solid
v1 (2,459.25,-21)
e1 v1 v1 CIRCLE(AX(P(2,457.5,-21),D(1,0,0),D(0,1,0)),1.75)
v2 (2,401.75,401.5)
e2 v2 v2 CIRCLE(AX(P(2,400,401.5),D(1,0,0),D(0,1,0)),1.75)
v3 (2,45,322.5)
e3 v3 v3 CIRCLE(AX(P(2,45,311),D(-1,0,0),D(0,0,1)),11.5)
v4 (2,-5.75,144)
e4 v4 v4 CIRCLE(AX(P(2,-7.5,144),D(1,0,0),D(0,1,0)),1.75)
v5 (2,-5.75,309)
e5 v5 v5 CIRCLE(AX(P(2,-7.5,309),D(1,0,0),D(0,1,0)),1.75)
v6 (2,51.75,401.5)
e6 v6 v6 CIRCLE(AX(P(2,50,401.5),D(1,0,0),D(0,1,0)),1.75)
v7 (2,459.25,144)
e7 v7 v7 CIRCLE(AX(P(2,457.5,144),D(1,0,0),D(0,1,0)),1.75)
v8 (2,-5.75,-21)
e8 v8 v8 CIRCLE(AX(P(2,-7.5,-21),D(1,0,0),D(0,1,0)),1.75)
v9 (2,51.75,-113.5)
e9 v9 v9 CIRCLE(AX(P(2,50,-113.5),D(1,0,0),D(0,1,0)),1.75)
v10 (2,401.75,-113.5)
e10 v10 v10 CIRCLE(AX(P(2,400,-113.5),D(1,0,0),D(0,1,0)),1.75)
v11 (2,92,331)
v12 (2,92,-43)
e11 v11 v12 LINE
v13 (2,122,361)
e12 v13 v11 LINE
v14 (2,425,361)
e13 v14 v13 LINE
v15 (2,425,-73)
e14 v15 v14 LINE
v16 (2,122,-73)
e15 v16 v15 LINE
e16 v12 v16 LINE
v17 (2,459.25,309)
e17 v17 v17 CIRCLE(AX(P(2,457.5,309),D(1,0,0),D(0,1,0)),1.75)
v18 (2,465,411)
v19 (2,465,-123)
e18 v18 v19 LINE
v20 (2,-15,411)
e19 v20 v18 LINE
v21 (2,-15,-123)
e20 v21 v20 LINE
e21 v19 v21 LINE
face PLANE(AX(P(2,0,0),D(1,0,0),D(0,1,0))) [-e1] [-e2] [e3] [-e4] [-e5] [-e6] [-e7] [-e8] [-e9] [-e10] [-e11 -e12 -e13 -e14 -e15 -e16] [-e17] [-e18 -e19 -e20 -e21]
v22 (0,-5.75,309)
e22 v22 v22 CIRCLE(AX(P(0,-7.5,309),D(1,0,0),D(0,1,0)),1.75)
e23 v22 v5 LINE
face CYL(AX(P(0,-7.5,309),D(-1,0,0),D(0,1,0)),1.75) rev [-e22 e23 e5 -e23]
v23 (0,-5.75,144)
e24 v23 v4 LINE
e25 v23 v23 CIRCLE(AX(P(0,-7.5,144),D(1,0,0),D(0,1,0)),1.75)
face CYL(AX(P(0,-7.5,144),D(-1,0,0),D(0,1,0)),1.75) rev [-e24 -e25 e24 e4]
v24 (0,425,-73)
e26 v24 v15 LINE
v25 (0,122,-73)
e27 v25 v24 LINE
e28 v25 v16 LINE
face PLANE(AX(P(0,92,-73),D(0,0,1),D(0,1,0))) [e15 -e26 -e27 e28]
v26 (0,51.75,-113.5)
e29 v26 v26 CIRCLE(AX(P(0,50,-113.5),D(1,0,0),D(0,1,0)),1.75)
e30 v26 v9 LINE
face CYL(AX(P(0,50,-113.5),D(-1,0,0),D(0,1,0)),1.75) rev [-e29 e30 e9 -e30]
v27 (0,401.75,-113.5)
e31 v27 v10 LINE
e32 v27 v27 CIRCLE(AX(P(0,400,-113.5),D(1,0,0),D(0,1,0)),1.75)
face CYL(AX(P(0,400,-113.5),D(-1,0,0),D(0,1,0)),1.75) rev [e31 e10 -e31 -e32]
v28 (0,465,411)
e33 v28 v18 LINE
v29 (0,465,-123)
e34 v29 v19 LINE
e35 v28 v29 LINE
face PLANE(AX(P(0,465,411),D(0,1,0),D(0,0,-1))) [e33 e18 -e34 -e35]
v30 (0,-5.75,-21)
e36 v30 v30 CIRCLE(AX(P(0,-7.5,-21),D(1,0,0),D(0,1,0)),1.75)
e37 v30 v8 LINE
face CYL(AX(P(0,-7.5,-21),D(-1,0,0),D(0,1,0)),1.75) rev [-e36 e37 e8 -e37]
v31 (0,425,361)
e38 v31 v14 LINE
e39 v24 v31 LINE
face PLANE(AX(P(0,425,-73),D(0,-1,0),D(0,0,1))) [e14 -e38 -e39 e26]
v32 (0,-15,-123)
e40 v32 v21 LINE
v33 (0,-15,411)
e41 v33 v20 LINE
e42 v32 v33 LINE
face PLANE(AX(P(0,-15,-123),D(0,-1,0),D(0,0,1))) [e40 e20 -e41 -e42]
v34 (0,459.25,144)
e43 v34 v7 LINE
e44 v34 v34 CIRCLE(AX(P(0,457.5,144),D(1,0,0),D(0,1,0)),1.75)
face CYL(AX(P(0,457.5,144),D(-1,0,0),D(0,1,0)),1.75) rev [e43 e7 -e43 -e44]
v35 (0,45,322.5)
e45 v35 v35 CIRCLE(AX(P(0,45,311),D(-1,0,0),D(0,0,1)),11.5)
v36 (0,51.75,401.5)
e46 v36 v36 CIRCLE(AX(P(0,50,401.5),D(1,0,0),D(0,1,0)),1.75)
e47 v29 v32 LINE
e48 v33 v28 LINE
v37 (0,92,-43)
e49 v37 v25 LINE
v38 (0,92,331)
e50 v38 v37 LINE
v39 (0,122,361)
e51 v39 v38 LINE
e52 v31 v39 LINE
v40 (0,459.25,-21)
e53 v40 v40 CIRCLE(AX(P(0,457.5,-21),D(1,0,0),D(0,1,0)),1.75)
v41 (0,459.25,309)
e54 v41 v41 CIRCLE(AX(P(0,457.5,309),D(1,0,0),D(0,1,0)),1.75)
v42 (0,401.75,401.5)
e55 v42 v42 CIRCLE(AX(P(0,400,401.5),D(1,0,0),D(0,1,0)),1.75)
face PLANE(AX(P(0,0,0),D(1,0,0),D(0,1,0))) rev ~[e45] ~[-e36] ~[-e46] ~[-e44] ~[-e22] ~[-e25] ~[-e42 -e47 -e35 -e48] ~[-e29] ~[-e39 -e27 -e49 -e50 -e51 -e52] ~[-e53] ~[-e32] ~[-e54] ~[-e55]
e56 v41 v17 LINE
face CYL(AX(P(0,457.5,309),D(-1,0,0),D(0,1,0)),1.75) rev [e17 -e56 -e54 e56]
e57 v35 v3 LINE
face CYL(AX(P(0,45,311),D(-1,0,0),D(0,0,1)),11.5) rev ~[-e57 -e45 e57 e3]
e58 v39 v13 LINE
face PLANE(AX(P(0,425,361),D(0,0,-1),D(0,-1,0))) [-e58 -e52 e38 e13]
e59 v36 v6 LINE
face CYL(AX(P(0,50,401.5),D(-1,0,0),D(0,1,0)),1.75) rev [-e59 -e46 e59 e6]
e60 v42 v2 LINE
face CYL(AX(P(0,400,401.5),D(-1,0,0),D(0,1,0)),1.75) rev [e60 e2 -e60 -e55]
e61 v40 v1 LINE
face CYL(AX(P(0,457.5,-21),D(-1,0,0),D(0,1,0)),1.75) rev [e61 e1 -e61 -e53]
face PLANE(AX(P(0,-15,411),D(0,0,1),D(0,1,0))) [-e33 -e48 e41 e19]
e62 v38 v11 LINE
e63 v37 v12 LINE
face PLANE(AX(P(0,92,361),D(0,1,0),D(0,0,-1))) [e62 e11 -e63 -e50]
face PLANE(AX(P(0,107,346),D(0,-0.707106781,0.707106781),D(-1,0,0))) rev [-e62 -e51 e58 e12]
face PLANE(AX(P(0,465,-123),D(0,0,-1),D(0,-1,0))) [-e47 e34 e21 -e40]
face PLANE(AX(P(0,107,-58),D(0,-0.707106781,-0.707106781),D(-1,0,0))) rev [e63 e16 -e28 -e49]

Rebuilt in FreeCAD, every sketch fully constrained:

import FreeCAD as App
import Part
import Sketcher

V = App.Vector


def edges_at(feature, points):
    """Names of the edges that pass closest to the given points."""
    edges = feature.Shape.Edges
    near = lambda p: min(range(len(edges)), key=lambda i: edges[i].distToShape(Part.Vertex(*p))[0])
    return sorted({f"Edge{near(p) + 1}" for p in points})


def add_polygon(sketch, points):
    """Adds a closed chain of lines whose ends are joined by coincident constraints."""
    first, n = sketch.GeometryCount, len(points)
    for a, b in zip(points, points[1:] + points[:1]):
        sketch.addGeometry(Part.LineSegment(App.Vector(*a, 0), App.Vector(*b, 0)), False)
    for i in range(n):
        sketch.addConstraint(Sketcher.Constraint("Coincident", first + i, 2, first + (i + 1) % n, 1))

doc = App.newDocument("Part")
body = doc.addObject("PartDesign::Body", "Body")

# Sketch on YZ plane
sketch1 = doc.addObject("Sketcher::SketchObject", "Sketch")
body.addObject(sketch1)
sketch1.AttachmentSupport = (doc.YZ_Plane, [""])
sketch1.MapMode = "FlatFace"
add_polygon(sketch1, [(465, -123), (465, 411), (-15, 411), (-15, -123)])  # lines 0-3
sketch1.addGeometry(Part.Circle(V(50, -113.5, 0), V(0, 0, 1), 1.75), False)  # 4
sketch1.addGeometry(Part.Circle(V(-7.5, -21, 0), V(0, 0, 1), 1.75), False)  # 5
sketch1.addGeometry(Part.Circle(V(400, -113.5, 0), V(0, 0, 1), 1.75), False)  # 6
sketch1.addGeometry(Part.Circle(V(457.5, -21, 0), V(0, 0, 1), 1.75), False)  # 7
sketch1.addGeometry(Part.Circle(V(-7.5, 144, 0), V(0, 0, 1), 1.75), False)  # 8
sketch1.addGeometry(Part.Circle(V(-7.5, 309, 0), V(0, 0, 1), 1.75), False)  # 9
sketch1.addGeometry(Part.Circle(V(50, 401.5, 0), V(0, 0, 1), 1.75), False)  # 10
sketch1.addGeometry(Part.Circle(V(457.5, 144, 0), V(0, 0, 1), 1.75), False)  # 11
sketch1.addGeometry(Part.Circle(V(457.5, 309, 0), V(0, 0, 1), 1.75), False)  # 12
sketch1.addGeometry(Part.Circle(V(400, 401.5, 0), V(0, 0, 1), 1.75), False)  # 13
sketch1.addConstraint(Sketcher.Constraint("Vertical", 0))
sketch1.addConstraint(Sketcher.Constraint("Horizontal", 1))
sketch1.addConstraint(Sketcher.Constraint("Vertical", 2))
sketch1.addConstraint(Sketcher.Constraint("Horizontal", 3))
sketch1.addConstraint(Sketcher.Constraint("Equal", 4, 5))
sketch1.addConstraint(Sketcher.Constraint("Equal", 5, 6))
sketch1.addConstraint(Sketcher.Constraint("Equal", 6, 7))
sketch1.addConstraint(Sketcher.Constraint("Equal", 7, 8))
sketch1.addConstraint(Sketcher.Constraint("Equal", 8, 9))
sketch1.addConstraint(Sketcher.Constraint("Equal", 9, 10))
sketch1.addConstraint(Sketcher.Constraint("Equal", 10, 11))
sketch1.addConstraint(Sketcher.Constraint("Equal", 11, 12))
sketch1.addConstraint(Sketcher.Constraint("Equal", 12, 13))
sketch1.addConstraint(Sketcher.Constraint("Horizontal", 4, 3, 6, 3))
sketch1.addConstraint(Sketcher.Constraint("Horizontal", 5, 3, 7, 3))
sketch1.addConstraint(Sketcher.Constraint("Horizontal", 8, 3, 11, 3))
sketch1.addConstraint(Sketcher.Constraint("Horizontal", 9, 3, 12, 3))
sketch1.addConstraint(Sketcher.Constraint("Horizontal", 10, 3, 13, 3))
sketch1.addConstraint(Sketcher.Constraint("Vertical", 5, 3, 8, 3))
sketch1.addConstraint(Sketcher.Constraint("Vertical", 8, 3, 9, 3))
sketch1.addConstraint(Sketcher.Constraint("Vertical", 4, 3, 10, 3))
sketch1.addConstraint(Sketcher.Constraint("Vertical", 7, 3, 11, 3))
sketch1.addConstraint(Sketcher.Constraint("Vertical", 11, 3, 12, 3))
sketch1.addConstraint(Sketcher.Constraint("Vertical", 6, 3, 13, 3))
sketch1.addConstraint(Sketcher.Constraint("Diameter", 4, 3.5))
sketch1.addConstraint(Sketcher.Constraint("DistanceX", 1, 2, 1, 1, 480.0))
sketch1.addConstraint(Sketcher.Constraint("DistanceY", 0, 1, 0, 2, 534.0))
sketch1.addConstraint(Sketcher.Constraint("DistanceX", -1, 1, 4, 3, 50.0))
sketch1.addConstraint(Sketcher.Constraint("DistanceY", 5, 3, -1, 1, 21.0))
sketch1.addConstraint(Sketcher.Constraint("DistanceX", -1, 1, 6, 3, 400.0))
sketch1.addConstraint(Sketcher.Constraint("DistanceY", -1, 1, 8, 3, 144.0))
sketch1.addConstraint(Sketcher.Constraint("DistanceY", -1, 1, 9, 3, 309.0))
sketch1.addConstraint(Sketcher.Constraint("DistanceX", -1, 1, 0, 2, 465.0))
sketch1.addConstraint(Sketcher.Constraint("DistanceY", -1, 1, 0, 2, 411.0))
sketch1.addConstraint(Sketcher.Constraint("DistanceX", 5, 3, 7, 3, 465.0))
sketch1.addConstraint(Sketcher.Constraint("DistanceY", 4, 3, 10, 3, 515.0))
sketch1.addConstraint(Sketcher.Constraint("DistanceY", 4, 3, -1, 1, 113.5))
sketch1.addConstraint(Sketcher.Constraint("DistanceX", 5, 3, -1, 1, 7.5))
pad1 = doc.addObject("PartDesign::Pad", "Pad")
body.addObject(pad1)
pad1.Profile = sketch1
pad1.Length = 2

# Sketch on YZ plane
sketch2 = doc.addObject("Sketcher::SketchObject", "Sketch001")
body.addObject(sketch2)
sketch2.AttachmentSupport = (doc.YZ_Plane, [""])
sketch2.MapMode = "FlatFace"
add_polygon(sketch2, [(425, 361), (425, -73), (92, -73), (92, 361)])  # lines 0-3
sketch2.addConstraint(Sketcher.Constraint("Vertical", 0))
sketch2.addConstraint(Sketcher.Constraint("Horizontal", 1))
sketch2.addConstraint(Sketcher.Constraint("Vertical", 2))
sketch2.addConstraint(Sketcher.Constraint("Horizontal", 3))
sketch2.addConstraint(Sketcher.Constraint("DistanceX", 1, 2, 1, 1, 333.0))
sketch2.addConstraint(Sketcher.Constraint("DistanceY", 0, 2, 0, 1, 434.0))
sketch2.addConstraint(Sketcher.Constraint("DistanceX", -1, 1, 0, 2, 425.0))
sketch2.addConstraint(Sketcher.Constraint("DistanceY", 0, 2, -1, 1, 73.0))
pocket1 = doc.addObject("PartDesign::Pocket", "Pocket")
body.addObject(pocket1)
pocket1.Profile = sketch2
pocket1.Length = 2
pocket1.Reversed = True
doc.recompute()

chamfer = doc.addObject("PartDesign::Chamfer", "Chamfer")
body.addObject(chamfer)
chamfer.Base = (pocket1, edges_at(pocket1, [(1, 92, -73), (1, 92, 361)]))
chamfer.Size = 30

# Sketch on YZ plane
sketch3 = doc.addObject("Sketcher::SketchObject", "Sketch002")
body.addObject(sketch3)
sketch3.AttachmentSupport = (doc.YZ_Plane, [""])
sketch3.MapMode = "FlatFace"
sketch3.addGeometry(Part.Circle(V(45, 311, 0), V(0, 0, 1), 11.5), False)
sketch3.addConstraint(Sketcher.Constraint("Diameter", 0, 23.0))
sketch3.addConstraint(Sketcher.Constraint("DistanceX", -1, 1, 0, 3, 45.0))
sketch3.addConstraint(Sketcher.Constraint("DistanceY", -1, 1, 0, 3, 311.0))
pocket2 = doc.addObject("PartDesign::Pocket", "Pocket001")
body.addObject(pocket2)
pocket2.Profile = sketch3
pocket2.Type = "ThroughAll"
pocket2.Reversed = True

doc.recompute()
